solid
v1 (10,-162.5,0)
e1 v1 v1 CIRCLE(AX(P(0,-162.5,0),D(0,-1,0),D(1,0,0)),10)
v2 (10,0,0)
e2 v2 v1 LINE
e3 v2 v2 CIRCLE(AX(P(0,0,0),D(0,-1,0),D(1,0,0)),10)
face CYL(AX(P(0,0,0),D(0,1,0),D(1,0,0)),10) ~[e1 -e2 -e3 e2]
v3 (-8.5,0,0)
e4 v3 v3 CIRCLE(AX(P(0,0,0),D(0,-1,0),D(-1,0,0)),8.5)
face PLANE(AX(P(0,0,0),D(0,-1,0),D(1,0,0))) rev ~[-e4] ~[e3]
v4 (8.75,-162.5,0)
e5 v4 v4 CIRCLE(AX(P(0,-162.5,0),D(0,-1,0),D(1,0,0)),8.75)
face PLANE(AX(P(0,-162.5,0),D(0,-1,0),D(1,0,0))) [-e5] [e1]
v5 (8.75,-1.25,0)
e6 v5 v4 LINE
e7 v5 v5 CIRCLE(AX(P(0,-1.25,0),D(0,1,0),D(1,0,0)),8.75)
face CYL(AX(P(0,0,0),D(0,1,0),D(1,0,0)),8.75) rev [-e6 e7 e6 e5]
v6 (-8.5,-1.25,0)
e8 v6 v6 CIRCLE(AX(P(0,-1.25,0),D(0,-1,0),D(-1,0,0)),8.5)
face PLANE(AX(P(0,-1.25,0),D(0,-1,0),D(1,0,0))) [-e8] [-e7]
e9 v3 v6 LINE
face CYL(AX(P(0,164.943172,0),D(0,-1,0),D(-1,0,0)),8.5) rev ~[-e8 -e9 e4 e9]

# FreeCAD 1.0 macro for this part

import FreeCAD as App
import Part
import Sketcher


def faces_at(feature, points):
    """Names of the faces that lie closest to the given points."""
    faces = feature.Shape.Faces
    near = lambda p: min(range(len(faces)), key=lambda i: faces[i].distToShape(Part.Vertex(*p))[0])
    return sorted({f"Face{near(p) + 1}" for p in points})

doc = App.newDocument("Part")
body = doc.addObject("PartDesign::Body", "Body")

# Sketch on XZ plane
sketch1 = body.newObject("Sketcher::SketchObject", "Sketch")
sketch1.AttachmentSupport = (doc.getObject("XZ_Plane"), [""])
sketch1.MapMode = "FlatFace"
sketch1.addGeometry(Part.Circle(App.Vector(0, 0, 0), App.Vector(0, 0, 1), 10), False)
sketch1.addConstraint([
    Sketcher.Constraint("Coincident", 0, 3, -1, 1),
    Sketcher.Constraint("Diameter", 0, 20.0),
])
pad1 = body.newObject("PartDesign::Pad", "Pad")
pad1.Profile = sketch1
pad1.Length = 162.5
doc.recompute()

thickness = body.newObject("PartDesign::Thickness", "Thickness")
thickness.Base = (pad1, faces_at(pad1, [(0, -162.5, 0)]))
thickness.Value = 1.25
thickness.Reversed = True
thickness.Join = "Arc"

# Sketch on XZ plane
sketch2 = body.newObject("Sketcher::SketchObject", "Sketch001")
sketch2.AttachmentSupport = (doc.getObject("XZ_Plane"), [""])
sketch2.MapMode = "FlatFace"
sketch2.addGeometry(Part.Circle(App.Vector(0, 0, 0), App.Vector(0, 0, 1), 8), False)
sketch2.addConstraint([
    Sketcher.Constraint("Coincident", 0, 3, -1, 1),
    Sketcher.Constraint("Diameter", 0, 17.0),
])
doc.recompute()
hole = body.newObject("PartDesign::Hole", "Hole")
hole.Profile = sketch2
hole.ThreadType = "None"
hole.Diameter = 17
hole.DepthType = "ThroughAll"
hole.Reversed = True

doc.recompute()
